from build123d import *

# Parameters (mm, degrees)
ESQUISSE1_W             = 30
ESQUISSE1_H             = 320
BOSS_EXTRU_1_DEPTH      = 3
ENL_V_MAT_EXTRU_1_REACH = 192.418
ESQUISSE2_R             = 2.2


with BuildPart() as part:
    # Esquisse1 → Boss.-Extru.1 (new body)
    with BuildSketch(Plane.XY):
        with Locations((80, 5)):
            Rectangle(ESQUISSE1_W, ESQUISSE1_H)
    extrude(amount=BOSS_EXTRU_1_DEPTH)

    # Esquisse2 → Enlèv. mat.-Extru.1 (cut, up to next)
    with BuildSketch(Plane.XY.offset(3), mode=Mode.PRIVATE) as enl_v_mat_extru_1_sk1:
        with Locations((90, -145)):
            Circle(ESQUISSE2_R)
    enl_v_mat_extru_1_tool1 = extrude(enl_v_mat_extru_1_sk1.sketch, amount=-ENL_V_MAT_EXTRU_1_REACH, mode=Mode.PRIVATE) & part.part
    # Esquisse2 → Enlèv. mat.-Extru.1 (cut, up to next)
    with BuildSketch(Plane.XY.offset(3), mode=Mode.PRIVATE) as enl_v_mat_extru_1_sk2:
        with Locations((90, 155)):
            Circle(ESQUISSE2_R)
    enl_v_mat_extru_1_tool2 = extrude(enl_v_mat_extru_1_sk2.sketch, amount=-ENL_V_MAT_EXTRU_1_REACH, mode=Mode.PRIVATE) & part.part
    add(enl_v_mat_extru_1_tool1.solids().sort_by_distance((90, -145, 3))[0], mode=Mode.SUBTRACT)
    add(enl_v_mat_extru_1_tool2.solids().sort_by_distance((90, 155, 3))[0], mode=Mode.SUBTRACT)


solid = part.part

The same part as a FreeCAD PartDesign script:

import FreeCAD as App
import Part
import Sketcher
Q = App.Units.Quantity


def add_polygon(sketch, points):
    """Adds a closed chain of lines whose ends are joined by coincident constraints."""
    first, n = sketch.GeometryCount, len(points)
    for a, b in zip(points, points[1:] + points[:1]):
        sketch.addGeometry(Part.LineSegment(App.Vector(*a, 0), App.Vector(*b, 0)), False)
    for i in range(n):
        sketch.addConstraint(Sketcher.Constraint("Coincident", first + i, 2, first + (i + 1) % n, 1))

doc = App.newDocument("Part")
body = doc.addObject("PartDesign::Body", "Body")

# Sketch on XY plane
sketch1 = body.newObject("Sketcher::SketchObject", "Sketch")
sketch1.AttachmentSupport = (doc.getObject("XY_Plane"), [""])
sketch1.MapMode = "FlatFace"
add_polygon(sketch1, [(65, 165), (65, -155), (95, -155), (95, 165)])  # lines 0-3
sketch1.addConstraint([
    Sketcher.Constraint("Vertical", 0),
    Sketcher.Constraint("Horizontal", 1),
    Sketcher.Constraint("Vertical", 2),
    Sketcher.Constraint("Horizontal", 3),
    Sketcher.Constraint("DistanceX", 1, 1, 1, 2, Q("30 mm")),
    Sketcher.Constraint("DistanceY", 0, 2, 0, 1, Q("320 mm")),
    Sketcher.Constraint("DistanceX", -1, 1, 0, 2, Q("65 mm")),
    Sketcher.Constraint("DistanceY", 0, 2, -1, 1, Q("155 mm")),
])
pad1 = body.newObject("PartDesign::Pad", "Pad")
pad1.Profile = sketch1
pad1.Length = 3

# Sketch on XY plane
sketch2 = body.newObject("Sketcher::SketchObject", "Sketch001")
sketch2.AttachmentSupport = (doc.getObject("XY_Plane"), [""])
sketch2.MapMode = "FlatFace"
sketch2.AttachmentOffset = App.Placement(App.Vector(0, 0, 3), App.Rotation())
sketch2.addGeometry(Part.Circle(App.Vector(90, -145, 0), App.Vector(0, 0, 1), 2.2), False)
sketch2.addConstraint([
    Sketcher.Constraint("Diameter", 0, Q("4.4 mm")),
    Sketcher.Constraint("DistanceX", -1, 1, 0, 3, Q("90 mm")),
    Sketcher.Constraint("DistanceY", 0, 3, -1, 1, Q("145 mm")),
])
pocket1 = body.newObject("PartDesign::Pocket", "Pocket")
pocket1.Profile = sketch2
pocket1.Type = "UpToFirst"

# Sketch on XY plane
sketch3 = body.newObject("Sketcher::SketchObject", "Sketch002")
sketch3.AttachmentSupport = (doc.getObject("XY_Plane"), [""])
sketch3.MapMode = "FlatFace"
sketch3.AttachmentOffset = App.Placement(App.Vector(0, 0, 3), App.Rotation())
sketch3.addGeometry(Part.Circle(App.Vector(90, 155, 0), App.Vector(0, 0, 1), 2.2), False)
sketch3.addConstraint([
    Sketcher.Constraint("Diameter", 0, Q("4.4 mm")),
    Sketcher.Constraint("DistanceX", -1, 1, 0, 3, Q("90 mm")),
    Sketcher.Constraint("DistanceY", -1, 1, 0, 3, Q("155 mm")),
])
pocket2 = body.newObject("PartDesign::Pocket", "Pocket001")
pocket2.Profile = sketch3
pocket2.Type = "UpToFirst"

doc.recompute()
